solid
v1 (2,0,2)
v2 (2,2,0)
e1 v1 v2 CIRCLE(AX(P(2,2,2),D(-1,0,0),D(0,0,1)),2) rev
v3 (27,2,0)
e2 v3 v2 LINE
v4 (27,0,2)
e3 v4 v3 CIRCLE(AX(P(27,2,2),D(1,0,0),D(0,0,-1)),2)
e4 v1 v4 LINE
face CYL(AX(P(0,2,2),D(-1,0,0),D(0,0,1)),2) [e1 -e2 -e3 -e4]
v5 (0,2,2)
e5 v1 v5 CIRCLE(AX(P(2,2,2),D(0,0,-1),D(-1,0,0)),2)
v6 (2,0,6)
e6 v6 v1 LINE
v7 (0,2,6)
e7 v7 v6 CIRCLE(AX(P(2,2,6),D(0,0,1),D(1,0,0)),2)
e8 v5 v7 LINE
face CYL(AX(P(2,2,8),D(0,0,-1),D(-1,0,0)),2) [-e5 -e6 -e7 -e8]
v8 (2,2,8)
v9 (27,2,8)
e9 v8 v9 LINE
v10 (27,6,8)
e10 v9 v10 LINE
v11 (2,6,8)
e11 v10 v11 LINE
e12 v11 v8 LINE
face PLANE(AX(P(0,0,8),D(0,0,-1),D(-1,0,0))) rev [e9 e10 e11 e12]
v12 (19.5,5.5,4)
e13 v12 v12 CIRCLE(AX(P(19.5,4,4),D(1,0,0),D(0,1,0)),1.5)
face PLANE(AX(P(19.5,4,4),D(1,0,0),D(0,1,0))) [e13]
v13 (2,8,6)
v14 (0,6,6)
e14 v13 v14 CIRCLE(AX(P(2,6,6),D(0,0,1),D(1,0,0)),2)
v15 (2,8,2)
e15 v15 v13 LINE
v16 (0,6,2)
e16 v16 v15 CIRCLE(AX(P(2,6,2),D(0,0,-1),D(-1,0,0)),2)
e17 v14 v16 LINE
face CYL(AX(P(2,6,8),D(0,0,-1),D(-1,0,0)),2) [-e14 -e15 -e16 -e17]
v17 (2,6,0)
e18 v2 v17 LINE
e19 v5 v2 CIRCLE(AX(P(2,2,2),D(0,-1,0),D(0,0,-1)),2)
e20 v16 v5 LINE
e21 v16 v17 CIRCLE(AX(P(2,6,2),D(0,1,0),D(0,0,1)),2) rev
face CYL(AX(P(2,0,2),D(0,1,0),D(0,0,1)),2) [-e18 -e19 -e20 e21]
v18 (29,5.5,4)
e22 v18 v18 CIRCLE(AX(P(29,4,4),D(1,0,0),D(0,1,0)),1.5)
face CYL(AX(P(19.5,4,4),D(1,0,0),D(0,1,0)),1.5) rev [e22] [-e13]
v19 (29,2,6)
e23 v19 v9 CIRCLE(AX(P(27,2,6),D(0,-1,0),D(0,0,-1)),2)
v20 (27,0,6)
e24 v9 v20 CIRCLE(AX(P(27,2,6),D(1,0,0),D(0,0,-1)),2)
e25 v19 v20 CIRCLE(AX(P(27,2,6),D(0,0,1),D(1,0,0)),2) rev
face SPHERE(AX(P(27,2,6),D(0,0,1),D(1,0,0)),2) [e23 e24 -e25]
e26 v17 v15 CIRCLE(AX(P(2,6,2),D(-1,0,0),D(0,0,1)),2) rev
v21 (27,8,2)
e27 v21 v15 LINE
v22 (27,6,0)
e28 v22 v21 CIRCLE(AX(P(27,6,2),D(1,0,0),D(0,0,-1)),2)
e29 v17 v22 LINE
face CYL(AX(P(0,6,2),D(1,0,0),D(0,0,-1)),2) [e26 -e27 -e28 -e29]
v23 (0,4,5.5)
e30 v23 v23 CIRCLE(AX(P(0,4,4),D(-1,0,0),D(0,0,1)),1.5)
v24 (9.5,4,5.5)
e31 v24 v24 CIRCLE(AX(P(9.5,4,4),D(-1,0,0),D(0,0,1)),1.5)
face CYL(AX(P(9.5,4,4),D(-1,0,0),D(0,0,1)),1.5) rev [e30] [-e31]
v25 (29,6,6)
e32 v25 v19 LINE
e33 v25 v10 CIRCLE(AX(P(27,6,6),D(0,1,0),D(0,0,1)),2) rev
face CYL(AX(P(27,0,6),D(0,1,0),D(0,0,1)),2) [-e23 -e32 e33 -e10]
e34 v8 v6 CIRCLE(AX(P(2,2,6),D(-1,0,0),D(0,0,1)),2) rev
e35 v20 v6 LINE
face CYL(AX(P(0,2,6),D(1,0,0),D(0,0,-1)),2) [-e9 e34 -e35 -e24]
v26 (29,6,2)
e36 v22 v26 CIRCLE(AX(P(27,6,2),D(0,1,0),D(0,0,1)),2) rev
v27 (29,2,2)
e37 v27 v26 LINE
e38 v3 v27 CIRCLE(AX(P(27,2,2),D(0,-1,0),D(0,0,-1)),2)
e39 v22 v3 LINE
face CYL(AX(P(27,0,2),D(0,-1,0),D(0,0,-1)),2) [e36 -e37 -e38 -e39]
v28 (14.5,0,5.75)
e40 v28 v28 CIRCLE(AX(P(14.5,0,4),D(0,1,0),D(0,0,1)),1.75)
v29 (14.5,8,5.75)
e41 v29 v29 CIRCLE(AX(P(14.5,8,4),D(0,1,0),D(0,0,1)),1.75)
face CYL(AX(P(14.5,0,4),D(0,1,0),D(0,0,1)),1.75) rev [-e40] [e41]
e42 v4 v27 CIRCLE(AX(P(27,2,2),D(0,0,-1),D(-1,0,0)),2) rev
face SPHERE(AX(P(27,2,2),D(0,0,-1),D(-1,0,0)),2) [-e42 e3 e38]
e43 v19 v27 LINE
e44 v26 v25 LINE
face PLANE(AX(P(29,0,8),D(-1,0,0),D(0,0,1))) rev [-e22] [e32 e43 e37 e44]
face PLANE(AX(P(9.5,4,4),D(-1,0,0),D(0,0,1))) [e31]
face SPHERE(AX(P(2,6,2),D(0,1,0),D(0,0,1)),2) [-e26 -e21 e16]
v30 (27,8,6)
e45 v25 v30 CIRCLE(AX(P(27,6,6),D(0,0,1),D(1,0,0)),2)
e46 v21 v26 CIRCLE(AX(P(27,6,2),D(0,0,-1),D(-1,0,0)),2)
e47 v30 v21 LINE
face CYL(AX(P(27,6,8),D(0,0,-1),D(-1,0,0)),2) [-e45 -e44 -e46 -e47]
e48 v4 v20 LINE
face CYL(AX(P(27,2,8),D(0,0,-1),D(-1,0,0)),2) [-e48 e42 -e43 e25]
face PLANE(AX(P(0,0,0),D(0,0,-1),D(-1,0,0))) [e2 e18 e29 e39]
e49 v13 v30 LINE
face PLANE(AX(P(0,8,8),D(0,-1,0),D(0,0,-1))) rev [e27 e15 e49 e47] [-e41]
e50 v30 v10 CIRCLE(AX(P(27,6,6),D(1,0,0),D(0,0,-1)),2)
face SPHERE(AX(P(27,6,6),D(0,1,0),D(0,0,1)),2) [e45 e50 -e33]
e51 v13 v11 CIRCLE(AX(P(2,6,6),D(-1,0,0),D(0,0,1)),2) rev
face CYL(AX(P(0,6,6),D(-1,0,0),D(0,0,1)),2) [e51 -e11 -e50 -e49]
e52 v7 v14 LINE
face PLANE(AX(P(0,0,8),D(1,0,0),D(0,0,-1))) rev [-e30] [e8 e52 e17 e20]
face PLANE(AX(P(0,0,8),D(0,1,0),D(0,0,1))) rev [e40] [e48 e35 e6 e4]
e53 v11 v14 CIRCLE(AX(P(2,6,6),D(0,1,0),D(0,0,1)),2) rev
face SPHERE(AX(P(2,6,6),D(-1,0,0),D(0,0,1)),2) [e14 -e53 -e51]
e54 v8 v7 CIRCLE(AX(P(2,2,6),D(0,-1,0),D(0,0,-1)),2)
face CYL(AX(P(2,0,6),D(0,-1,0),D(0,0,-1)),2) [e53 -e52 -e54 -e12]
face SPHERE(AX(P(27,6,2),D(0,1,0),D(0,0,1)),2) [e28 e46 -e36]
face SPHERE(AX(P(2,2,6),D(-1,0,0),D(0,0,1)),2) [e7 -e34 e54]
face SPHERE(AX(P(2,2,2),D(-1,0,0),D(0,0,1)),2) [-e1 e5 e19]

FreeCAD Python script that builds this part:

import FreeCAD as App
import Part
import Sketcher
from FreeCAD import Vector
Q = App.Units.Quantity


def edges_at(feature, points):
    """Names of the edges that pass closest to the given points."""
    edges = feature.Shape.Edges
    near = lambda p: min(range(len(edges)), key=lambda i: edges[i].distToShape(Part.Vertex(*p))[0])
    return sorted({f"Edge{near(p) + 1}" for p in points})


def add_polygon(sketch, points):
    """Adds a closed chain of lines whose ends are joined by coincident constraints."""
    first, n = sketch.GeometryCount, len(points)
    for a, b in zip(points, points[1:] + points[:1]):
        sketch.addGeometry(Part.LineSegment(App.Vector(*a, 0), App.Vector(*b, 0)), False)
    for i in range(n):
        sketch.addConstraint(Sketcher.Constraint("Coincident", first + i, 2, first + (i + 1) % n, 1))

doc = App.newDocument("Part")
params = doc.addObject("Spreadsheet::Sheet", "Params")
for row, (alias, value) in enumerate([
    ("sketch1_width", "29 mm"),
    ("sketch1_height", "8 mm"),
    ("pad1_length", "8 mm"),
    ("sketch2_diameter", "3.5 mm"),
    ("fillet_radius", "2 mm"),
    ("sketch3_diameter", "3 mm"),
    ("pocket2_length", "9.5 mm"),
    ("sketch4_diameter", "3 mm"),
    ("pocket3_length", "9.5 mm"),
], start=1):
    params.set(f"A{row}", alias)
    params.set(f"B{row}", "=" + value)
    params.setAlias(f"B{row}", alias)

body = doc.addObject("PartDesign::Body", "Body")

# Sketch on XY plane
sketch1 = body.newObject("Sketcher::SketchObject", "Sketch")
sketch1.AttachmentSupport = (doc.getObject("XY_Plane"), [""])
sketch1.MapMode = "FlatFace"
add_polygon(sketch1, [(0, 8), (0, 0), (29, 0), (29, 8)])  # lines 0-3
sketch1.addConstraint(Sketcher.Constraint("Vertical", 0))
sketch1.addConstraint(Sketcher.Constraint("Horizontal", 1))
sketch1.addConstraint(Sketcher.Constraint("Vertical", 2))
sketch1.addConstraint(Sketcher.Constraint("Horizontal", 3))
sketch1.addConstraint(Sketcher.Constraint("Coincident", 0, 2, -1, 1))
sketch1.addConstraint(Sketcher.Constraint("DistanceX", 1, 1, 1, 2, Q("29 mm")))
sketch1.addConstraint(Sketcher.Constraint("DistanceY", 0, 2, 0, 1, Q("8 mm")))
sketch1.setExpression("Constraints[9]", "Params.sketch1_width")
sketch1.setExpression("Constraints[10]", "Params.sketch1_height")
pad1 = body.newObject("PartDesign::Pad", "Pad")
pad1.Profile = sketch1
pad1.setExpression("Length", "Params.pad1_length")

# Sketch on XZ plane
sketch2 = body.newObject("Sketcher::SketchObject", "Sketch001")
sketch2.AttachmentSupport = (doc.getObject("XZ_Plane"), [""])
sketch2.MapMode = "FlatFace"
sketch2.AttachmentOffset = App.Placement(Vector(0, 0, -8), App.Rotation())
sketch2.addGeometry(Part.Circle(Vector(14.5, 4, 0), Vector(0, 0, 1), 1.75), False)
sketch2.addConstraint(Sketcher.Constraint("Diameter", 0, Q("3.5 mm")))
sketch2.addConstraint(Sketcher.Constraint("DistanceY", -1, 1, 0, 3, Q("4 mm")))
sketch2.addConstraint(Sketcher.Constraint("DistanceX", -1, 1, 0, 3, Q("14.5 mm")))
sketch2.setExpression("Constraints[0]", "Params.sketch2_diameter")
pocket1 = body.newObject("PartDesign::Pocket", "Pocket")
pocket1.Profile = sketch2
pocket1.Type = "ThroughAll"
pocket1.Reversed = True
doc.recompute()

fillet = body.newObject("PartDesign::Fillet", "Fillet")
fillet.Base = (pocket1, edges_at(pocket1, [
    (29, 4, 8),
    (14.5, 8, 8),
    (0, 4, 8),
    (14.5, 8, 0),
    (29, 4, 0),
    (14.5, 0, 0),
    (0, 4, 0),
    (0, 8, 4),
    (29, 8, 4),
    (29, 0, 4),
    (0, 0, 4),
    (14.5, 0, 8),
]))
fillet.setExpression("Radius", "Params.fillet_radius")

# Sketch on YZ plane
sketch3 = body.newObject("Sketcher::SketchObject", "Sketch002")
sketch3.AttachmentSupport = (doc.getObject("YZ_Plane"), [""])
sketch3.MapMode = "FlatFace"
sketch3.AttachmentOffset = App.Placement(Vector(0, 0, 29), App.Rotation())
sketch3.addGeometry(Part.Circle(Vector(4, 4, 0), Vector(0, 0, 1), 1.5), False)
sketch3.addConstraint(Sketcher.Constraint("Diameter", 0, Q("3 mm")))
sketch3.addConstraint(Sketcher.Constraint("DistanceX", -1, 1, 0, 3, Q("4 mm")))
sketch3.addConstraint(Sketcher.Constraint("DistanceY", -1, 1, 0, 3, Q("4 mm")))
sketch3.setExpression("Constraints[0]", "Params.sketch3_diameter")
pocket2 = body.newObject("PartDesign::Pocket", "Pocket001")
pocket2.Profile = sketch3
pocket2.setExpression("Length", "Params.pocket2_length")

# Sketch on YZ plane
sketch4 = body.newObject("Sketcher::SketchObject", "Sketch003")
sketch4.AttachmentSupport = (doc.getObject("YZ_Plane"), [""])
sketch4.MapMode = "FlatFace"
sketch4.addGeometry(Part.Circle(Vector(4, 4, 0), Vector(0, 0, 1), 1.5), False)
sketch4.addConstraint(Sketcher.Constraint("Diameter", 0, Q("3 mm")))
sketch4.addConstraint(Sketcher.Constraint("DistanceX", -1, 1, 0, 3, Q("4 mm")))
sketch4.addConstraint(Sketcher.Constraint("DistanceY", -1, 1, 0, 3, Q("4 mm")))
sketch4.setExpression("Constraints[0]", "Params.sketch4_diameter")
pocket3 = body.newObject("PartDesign::Pocket", "Pocket002")
pocket3.Profile = sketch4
pocket3.setExpression("Length", "Params.pocket3_length")
pocket3.Reversed = True

doc.recompute()
